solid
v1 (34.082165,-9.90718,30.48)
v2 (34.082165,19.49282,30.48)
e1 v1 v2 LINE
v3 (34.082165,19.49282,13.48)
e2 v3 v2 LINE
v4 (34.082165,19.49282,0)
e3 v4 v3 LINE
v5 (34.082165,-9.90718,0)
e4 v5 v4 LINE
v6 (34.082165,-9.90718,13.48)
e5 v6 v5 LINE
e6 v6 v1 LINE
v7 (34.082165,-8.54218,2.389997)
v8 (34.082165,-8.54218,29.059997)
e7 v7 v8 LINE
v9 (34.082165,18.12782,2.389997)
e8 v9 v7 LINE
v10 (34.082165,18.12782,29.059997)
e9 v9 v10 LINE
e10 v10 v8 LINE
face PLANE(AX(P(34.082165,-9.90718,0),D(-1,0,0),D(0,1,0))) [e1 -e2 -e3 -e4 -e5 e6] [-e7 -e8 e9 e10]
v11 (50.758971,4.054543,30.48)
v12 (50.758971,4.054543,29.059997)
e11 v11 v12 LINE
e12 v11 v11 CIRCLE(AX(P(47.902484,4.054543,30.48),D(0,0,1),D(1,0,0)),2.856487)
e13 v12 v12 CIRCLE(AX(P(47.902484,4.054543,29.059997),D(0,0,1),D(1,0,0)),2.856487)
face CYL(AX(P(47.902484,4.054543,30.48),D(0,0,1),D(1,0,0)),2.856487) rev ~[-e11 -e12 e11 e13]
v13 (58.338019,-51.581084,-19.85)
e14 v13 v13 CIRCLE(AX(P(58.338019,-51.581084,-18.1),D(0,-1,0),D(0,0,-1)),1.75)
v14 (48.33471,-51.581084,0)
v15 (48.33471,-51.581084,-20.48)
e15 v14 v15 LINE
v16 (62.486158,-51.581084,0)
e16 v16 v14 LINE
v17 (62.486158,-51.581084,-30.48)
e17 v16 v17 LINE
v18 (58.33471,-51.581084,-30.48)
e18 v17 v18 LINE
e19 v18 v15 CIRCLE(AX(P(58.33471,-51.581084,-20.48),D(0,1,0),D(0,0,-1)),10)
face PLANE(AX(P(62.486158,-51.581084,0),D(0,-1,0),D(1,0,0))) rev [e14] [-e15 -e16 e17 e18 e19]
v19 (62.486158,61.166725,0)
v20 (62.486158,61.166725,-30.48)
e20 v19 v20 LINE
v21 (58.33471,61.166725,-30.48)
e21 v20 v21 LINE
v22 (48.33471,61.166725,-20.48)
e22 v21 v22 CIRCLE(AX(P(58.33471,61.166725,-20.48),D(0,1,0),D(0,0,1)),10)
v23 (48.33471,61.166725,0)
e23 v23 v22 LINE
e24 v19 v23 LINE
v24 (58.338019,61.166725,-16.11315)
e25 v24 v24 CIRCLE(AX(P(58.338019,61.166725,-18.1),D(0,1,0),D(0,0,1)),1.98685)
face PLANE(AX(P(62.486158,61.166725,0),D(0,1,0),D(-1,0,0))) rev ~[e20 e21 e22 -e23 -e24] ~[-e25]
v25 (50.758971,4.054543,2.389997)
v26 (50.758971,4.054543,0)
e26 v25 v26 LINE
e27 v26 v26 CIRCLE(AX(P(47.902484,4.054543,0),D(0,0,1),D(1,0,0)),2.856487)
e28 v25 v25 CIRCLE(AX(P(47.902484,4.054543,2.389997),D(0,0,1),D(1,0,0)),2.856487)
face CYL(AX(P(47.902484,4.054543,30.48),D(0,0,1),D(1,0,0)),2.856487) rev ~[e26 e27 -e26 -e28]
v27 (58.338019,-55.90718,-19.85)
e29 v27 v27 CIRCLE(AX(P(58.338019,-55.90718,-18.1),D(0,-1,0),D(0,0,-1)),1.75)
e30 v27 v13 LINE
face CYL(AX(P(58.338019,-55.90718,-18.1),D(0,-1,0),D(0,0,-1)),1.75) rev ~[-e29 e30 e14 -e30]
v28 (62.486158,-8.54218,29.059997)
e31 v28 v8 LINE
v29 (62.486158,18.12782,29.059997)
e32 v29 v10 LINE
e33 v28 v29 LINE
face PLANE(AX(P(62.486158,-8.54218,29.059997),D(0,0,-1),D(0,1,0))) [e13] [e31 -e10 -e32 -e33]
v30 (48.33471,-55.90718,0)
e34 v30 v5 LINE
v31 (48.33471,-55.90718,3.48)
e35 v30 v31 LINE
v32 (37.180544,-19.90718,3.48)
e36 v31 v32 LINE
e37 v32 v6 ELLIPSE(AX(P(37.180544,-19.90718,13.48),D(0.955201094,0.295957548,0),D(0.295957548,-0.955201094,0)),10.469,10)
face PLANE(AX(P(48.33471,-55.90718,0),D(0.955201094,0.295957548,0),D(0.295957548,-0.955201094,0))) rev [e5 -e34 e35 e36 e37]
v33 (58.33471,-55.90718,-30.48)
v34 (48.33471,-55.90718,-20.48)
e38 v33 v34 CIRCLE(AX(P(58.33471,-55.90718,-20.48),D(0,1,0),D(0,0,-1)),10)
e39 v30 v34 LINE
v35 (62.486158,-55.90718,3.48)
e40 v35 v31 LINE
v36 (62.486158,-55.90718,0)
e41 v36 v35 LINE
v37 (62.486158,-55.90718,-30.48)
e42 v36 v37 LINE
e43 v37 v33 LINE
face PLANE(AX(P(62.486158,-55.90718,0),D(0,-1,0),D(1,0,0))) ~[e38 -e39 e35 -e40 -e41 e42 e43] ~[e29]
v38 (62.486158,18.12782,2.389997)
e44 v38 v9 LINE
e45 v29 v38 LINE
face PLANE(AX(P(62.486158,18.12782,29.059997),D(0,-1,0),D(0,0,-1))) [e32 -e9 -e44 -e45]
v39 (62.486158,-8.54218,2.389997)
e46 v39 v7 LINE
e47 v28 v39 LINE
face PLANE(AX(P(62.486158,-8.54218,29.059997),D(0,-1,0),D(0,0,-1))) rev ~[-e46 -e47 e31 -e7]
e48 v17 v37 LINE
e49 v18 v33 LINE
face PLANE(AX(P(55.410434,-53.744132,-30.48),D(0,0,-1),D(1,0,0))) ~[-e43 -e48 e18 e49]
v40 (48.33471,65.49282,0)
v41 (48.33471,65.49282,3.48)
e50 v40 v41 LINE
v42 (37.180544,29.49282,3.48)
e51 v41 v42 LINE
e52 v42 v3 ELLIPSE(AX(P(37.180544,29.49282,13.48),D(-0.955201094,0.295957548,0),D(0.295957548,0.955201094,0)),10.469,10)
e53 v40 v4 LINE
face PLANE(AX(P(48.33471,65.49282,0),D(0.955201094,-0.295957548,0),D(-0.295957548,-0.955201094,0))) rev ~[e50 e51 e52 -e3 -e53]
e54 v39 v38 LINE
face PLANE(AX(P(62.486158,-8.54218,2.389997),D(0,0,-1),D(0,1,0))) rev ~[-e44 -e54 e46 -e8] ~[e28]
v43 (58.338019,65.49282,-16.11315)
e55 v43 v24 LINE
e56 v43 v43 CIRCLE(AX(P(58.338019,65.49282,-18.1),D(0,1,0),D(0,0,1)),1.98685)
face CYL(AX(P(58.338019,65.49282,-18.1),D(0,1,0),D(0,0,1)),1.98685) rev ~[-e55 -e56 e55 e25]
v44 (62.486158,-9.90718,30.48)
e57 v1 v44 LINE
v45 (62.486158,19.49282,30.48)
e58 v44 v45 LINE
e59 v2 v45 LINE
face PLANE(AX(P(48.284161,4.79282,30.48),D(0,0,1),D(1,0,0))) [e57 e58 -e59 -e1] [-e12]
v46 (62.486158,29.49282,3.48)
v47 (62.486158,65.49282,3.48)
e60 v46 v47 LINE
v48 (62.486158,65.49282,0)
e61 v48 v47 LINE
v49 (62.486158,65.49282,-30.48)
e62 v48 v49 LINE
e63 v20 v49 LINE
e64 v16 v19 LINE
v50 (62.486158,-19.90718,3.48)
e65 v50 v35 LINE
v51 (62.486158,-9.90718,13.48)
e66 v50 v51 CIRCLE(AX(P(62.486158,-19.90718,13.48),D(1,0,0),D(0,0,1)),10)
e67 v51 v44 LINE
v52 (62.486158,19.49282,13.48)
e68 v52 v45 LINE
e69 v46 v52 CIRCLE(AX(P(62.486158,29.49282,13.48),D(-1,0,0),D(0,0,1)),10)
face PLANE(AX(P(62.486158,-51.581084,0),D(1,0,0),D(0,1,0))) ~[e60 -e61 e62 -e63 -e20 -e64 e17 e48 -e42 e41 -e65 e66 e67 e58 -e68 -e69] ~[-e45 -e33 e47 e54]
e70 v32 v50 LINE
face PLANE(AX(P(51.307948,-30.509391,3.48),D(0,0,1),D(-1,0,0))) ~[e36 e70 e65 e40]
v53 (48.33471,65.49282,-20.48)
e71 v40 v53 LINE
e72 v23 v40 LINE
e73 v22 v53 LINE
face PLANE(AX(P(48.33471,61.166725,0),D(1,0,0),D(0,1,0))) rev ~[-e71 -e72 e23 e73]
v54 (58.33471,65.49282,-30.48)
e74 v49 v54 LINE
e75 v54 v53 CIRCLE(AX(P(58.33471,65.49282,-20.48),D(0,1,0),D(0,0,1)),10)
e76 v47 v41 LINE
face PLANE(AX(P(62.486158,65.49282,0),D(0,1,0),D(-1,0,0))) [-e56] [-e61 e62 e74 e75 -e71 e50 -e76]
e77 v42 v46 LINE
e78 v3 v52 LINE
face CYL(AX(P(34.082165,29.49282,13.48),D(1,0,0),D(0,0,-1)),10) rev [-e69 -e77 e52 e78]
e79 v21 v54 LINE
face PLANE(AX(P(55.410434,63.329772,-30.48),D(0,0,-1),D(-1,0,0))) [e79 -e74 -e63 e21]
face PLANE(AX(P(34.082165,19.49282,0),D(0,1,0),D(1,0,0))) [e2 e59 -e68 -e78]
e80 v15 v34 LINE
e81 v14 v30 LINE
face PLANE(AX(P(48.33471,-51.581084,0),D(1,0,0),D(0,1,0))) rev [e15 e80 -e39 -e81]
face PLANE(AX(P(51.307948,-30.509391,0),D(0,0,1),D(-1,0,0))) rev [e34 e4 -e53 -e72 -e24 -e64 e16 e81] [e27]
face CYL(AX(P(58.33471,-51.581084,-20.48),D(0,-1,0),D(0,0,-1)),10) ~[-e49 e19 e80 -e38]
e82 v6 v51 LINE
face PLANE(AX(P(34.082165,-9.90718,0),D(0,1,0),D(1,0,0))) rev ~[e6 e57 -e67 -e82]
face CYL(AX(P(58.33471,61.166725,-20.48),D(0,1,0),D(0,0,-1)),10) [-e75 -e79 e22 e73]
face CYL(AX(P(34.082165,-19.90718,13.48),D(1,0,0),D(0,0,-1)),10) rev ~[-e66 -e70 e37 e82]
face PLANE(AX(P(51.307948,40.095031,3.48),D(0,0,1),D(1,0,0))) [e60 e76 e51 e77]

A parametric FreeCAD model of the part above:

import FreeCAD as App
import Part
import Sketcher
Q = App.Units.Quantity


def edges_at(feature, points):
    """Names of the edges that pass closest to the given points."""
    edges = feature.Shape.Edges
    near = lambda p: min(range(len(edges)), key=lambda i: edges[i].distToShape(Part.Vertex(*p))[0])
    return sorted({f"Edge{near(p) + 1}" for p in points})

doc = App.newDocument("Part")
body = doc.addObject("PartDesign::Body", "Body")

# Sketch on XY plane
sketch1 = body.newObject("Sketcher::SketchObject", "Sketch")
sketch1.AttachmentSupport = (doc.getObject("XY_Plane"), [""])
sketch1.MapMode = "FlatFace"
sketch1.addGeometry([
    Part.LineSegment(App.Vector(34, 19, 0), App.Vector(34, -10, 0)),
    Part.LineSegment(App.Vector(34, -10, 0), App.Vector(62, -10, 0)),
    Part.LineSegment(App.Vector(62, -10, 0), App.Vector(62, 19, 0)),
    Part.LineSegment(App.Vector(62, 19, 0), App.Vector(34, 19, 0)),
], False)
sketch1.addConstraint([
    Sketcher.Constraint("Coincident", 0, 2, 1, 1),
    Sketcher.Constraint("Coincident", 1, 2, 2, 1),
    Sketcher.Constraint("Coincident", 2, 2, 3, 1),
    Sketcher.Constraint("Coincident", 3, 2, 0, 1),
    Sketcher.Constraint("Vertical", 0),
    Sketcher.Constraint("Horizontal", 1),
    Sketcher.Constraint("Vertical", 2),
    Sketcher.Constraint("Horizontal", 3),
    Sketcher.Constraint("DistanceY", 0, 2, 0, 1, Q("29.4 mm")),
    Sketcher.Constraint("DistanceX", 1, 1, 1, 2, Q("28.403994 mm")),
    Sketcher.Constraint("DistanceY", 0, 2, -1, 1, Q("9.90718 mm")),
    Sketcher.Constraint("DistanceX", -1, 1, 1, 2, Q("62.486158 mm")),
])
pad1 = body.newObject("PartDesign::Pad", "Pad")
pad1.Profile = sketch1
pad1.Length = 30.48

# Sketch on XY plane
sketch2 = body.newObject("Sketcher::SketchObject", "Sketch001")
sketch2.AttachmentSupport = (doc.getObject("XY_Plane"), [""])
sketch2.MapMode = "FlatFace"
sketch2.addGeometry([
    Part.LineSegment(App.Vector(62, 65, 0), App.Vector(62, 19, 0)),
    Part.LineSegment(App.Vector(62, 19, 0), App.Vector(34, 19, 0)),
    Part.LineSegment(App.Vector(34, 19, 0), App.Vector(48, 65, 0)),
    Part.LineSegment(App.Vector(48, 65, 0), App.Vector(62, 65, 0)),
], False)
sketch2.addConstraint([
    Sketcher.Constraint("Coincident", 0, 2, 1, 1),
    Sketcher.Constraint("Coincident", 1, 2, 2, 1),
    Sketcher.Constraint("Coincident", 2, 2, 3, 1),
    Sketcher.Constraint("Coincident", 3, 2, 0, 1),
    Sketcher.Constraint("Vertical", 0),
    Sketcher.Constraint("Horizontal", 1),
    Sketcher.Constraint("Horizontal", 3),
    Sketcher.Constraint("DistanceY", 0, 2, 0, 1, Q("46 mm")),
    Sketcher.Constraint("Distance", 2, Q("48.157399 mm")),
    Sketcher.Constraint("DistanceX", 1, 2, 1, 1, Q("28.403994 mm")),
    Sketcher.Constraint("DistanceX", -1, 1, 0, 2, Q("62.486158 mm")),
    Sketcher.Constraint("DistanceY", -1, 1, 0, 2, Q("19.49282 mm")),
])
pad2 = body.newObject("PartDesign::Pad", "Pad001")
pad2.Profile = sketch2
pad2.Length = 3.48

# Sketch on XY plane
sketch3 = body.newObject("Sketcher::SketchObject", "Sketch002")
sketch3.AttachmentSupport = (doc.getObject("XY_Plane"), [""])
sketch3.MapMode = "FlatFace"
sketch3.addGeometry([
    Part.LineSegment(App.Vector(62.5, 65.5, 0), App.Vector(62.5, 61.2, 0)),
    Part.LineSegment(App.Vector(62.5, 61.2, 0), App.Vector(48.3, 61.2, 0)),
    Part.LineSegment(App.Vector(48.3, 61.2, 0), App.Vector(48.3, 65.5, 0)),
    Part.LineSegment(App.Vector(48.3, 65.5, 0), App.Vector(62.5, 65.5, 0)),
], False)
sketch3.addConstraint([
    Sketcher.Constraint("Coincident", 0, 2, 1, 1),
    Sketcher.Constraint("Coincident", 1, 2, 2, 1),
    Sketcher.Constraint("Coincident", 2, 2, 3, 1),
    Sketcher.Constraint("Coincident", 3, 2, 0, 1),
    Sketcher.Constraint("Vertical", 0),
    Sketcher.Constraint("Horizontal", 1),
    Sketcher.Constraint("Vertical", 2),
    Sketcher.Constraint("Horizontal", 3),
    Sketcher.Constraint("DistanceX", 1, 2, 1, 1, Q("14.151448 mm")),
    Sketcher.Constraint("DistanceY", 0, 2, 0, 1, Q("4.326096 mm")),
    Sketcher.Constraint("DistanceX", -1, 1, 0, 2, Q("62.486158 mm")),
    Sketcher.Constraint("DistanceY", -1, 1, 2, 2, Q("65.49282 mm")),
])
pad3 = body.newObject("PartDesign::Pad", "Pad002")
pad3.Profile = sketch3
pad3.Length = 30.48
pad3.Reversed = True

# Sketch on XZ plane
sketch4 = body.newObject("Sketcher::SketchObject", "Sketch003")
sketch4.AttachmentSupport = (doc.getObject("XZ_Plane"), [""])
sketch4.MapMode = "FlatFace"
sketch4.AttachmentOffset = App.Placement(App.Vector(0, 0, -65.49282), App.Rotation())
sketch4.addGeometry(Part.Circle(App.Vector(58.3, -18.1, 0), App.Vector(0, 0, 1), 2), False)
sketch4.addConstraint([
    Sketcher.Constraint("Diameter", 0, Q("3.973701 mm")),
    Sketcher.Constraint("DistanceY", 0, 3, -1, 1, Q("18.1 mm")),
    Sketcher.Constraint("DistanceX", -1, 1, 0, 3, Q("58.338019 mm")),
])
pocket1 = body.newObject("PartDesign::Pocket", "Pocket")
pocket1.Profile = sketch4
pocket1.Length = 4.48
pocket1.Reversed = True
doc.recompute()

fillet = body.newObject("PartDesign::Fillet", "Fillet")
fillet.Base = (pocket1, edges_at(pocket1, [(48.284, 19.493, 3.48)]))
fillet.Radius = 10
doc.recompute()

datumplane = body.newObject("PartDesign::Plane", "DatumPlane")
datumplane.AttachmentSupport = (doc.getObject("XZ_Plane"), [""])
datumplane.MapMode = "FlatFace"
datumplane.AttachmentOffset = App.Placement(App.Vector(0, 0, -4.79282), App.Rotation())
mirrored = body.newObject("PartDesign::Mirrored", "Mirrored")
mirrored.Originals = [pad2, pad3]
mirrored.MirrorPlane = (datumplane, [""])
body.Tip = mirrored

# Sketch on XY plane
sketch5 = body.newObject("Sketcher::SketchObject", "Sketch004")
sketch5.AttachmentSupport = (doc.getObject("XY_Plane"), [""])
sketch5.MapMode = "FlatFace"
sketch5.AttachmentOffset = App.Placement(App.Vector(0, 0, 30.48), App.Rotation())
sketch5.addGeometry(Part.Circle(App.Vector(47.9, 4.1, 0), App.Vector(0, 0, 1), 2.9), False)
sketch5.addConstraint([
    Sketcher.Constraint("Diameter", 0, Q("5.712974 mm")),
    Sketcher.Constraint("DistanceX", -1, 1, 0, 3, Q("47.902484 mm")),
    Sketcher.Constraint("DistanceY", -1, 1, 0, 3, Q("4.054543 mm")),
])
pocket2 = body.newObject("PartDesign::Pocket", "Pocket001")
pocket2.Profile = sketch5
pocket2.Length = 30.48
doc.recompute()

fillet2 = body.newObject("PartDesign::Fillet", "Fillet001")
fillet2.Base = (pocket2, edges_at(pocket2, [(48.284, -9.907, 3.48)]))
fillet2.Radius = 10

# Sketch on XZ plane
sketch6 = body.newObject("Sketcher::SketchObject", "Sketch005")
sketch6.AttachmentSupport = (doc.getObject("XZ_Plane"), [""])
sketch6.MapMode = "FlatFace"
sketch6.AttachmentOffset = App.Placement(App.Vector(0, 0, 55.90718), App.Rotation())
sketch6.addGeometry(Part.Circle(App.Vector(58.3, -18.1, 0), App.Vector(0, 0, 1), 1.8), False)
sketch6.addConstraint([
    Sketcher.Constraint("Diameter", 0, Q("3.5 mm")),
    Sketcher.Constraint("DistanceY", 0, 3, -1, 1, Q("18.1 mm")),
    Sketcher.Constraint("DistanceX", -1, 1, 0, 3, Q("58.338019 mm")),
])
pocket3 = body.newObject("PartDesign::Pocket", "Pocket002")
pocket3.Profile = sketch6
pocket3.Length = 4.48

# Sketch on YZ plane
sketch7 = body.newObject("Sketcher::SketchObject", "Sketch006")
sketch7.AttachmentSupport = (doc.getObject("YZ_Plane"), [""])
sketch7.MapMode = "FlatFace"
sketch7.AttachmentOffset = App.Placement(App.Vector(0, 0, 62.486158), App.Rotation())
sketch7.addGeometry([
    Part.LineSegment(App.Vector(18, 29, 0), App.Vector(-9, 29, 0)),
    Part.LineSegment(App.Vector(-9, 29, 0), App.Vector(-9, 2, 0)),
    Part.LineSegment(App.Vector(-9, 2, 0), App.Vector(18, 2, 0)),
    Part.LineSegment(App.Vector(18, 2, 0), App.Vector(18, 29, 0)),
], False)
sketch7.addConstraint([
    Sketcher.Constraint("Coincident", 0, 2, 1, 1),
    Sketcher.Constraint("Coincident", 1, 2, 2, 1),
    Sketcher.Constraint("Coincident", 2, 2, 3, 1),
    Sketcher.Constraint("Coincident", 3, 2, 0, 1),
    Sketcher.Constraint("Horizontal", 0),
    Sketcher.Constraint("Vertical", 1),
    Sketcher.Constraint("Horizontal", 2),
    Sketcher.Constraint("Vertical", 3),
    Sketcher.Constraint("Equal", 2, 1),
    Sketcher.Constraint("DistanceX", 0, 2, 0, 1, Q("26.67 mm")),
    Sketcher.Constraint("DistanceX", 0, 2, -1, 1, Q("8.54218 mm")),
    Sketcher.Constraint("DistanceY", -1, 1, 0, 2, Q("29.059997 mm")),
])
pocket4 = body.newObject("PartDesign::Pocket", "Pocket003")
pocket4.Profile = sketch7
pocket4.Length = 30.48
doc.recompute()

fillet3 = body.newObject("PartDesign::Fillet", "Fillet002")
fillet3.Base = (pocket4, edges_at(pocket4, [(48.335, 63.33, -30.48), (48.335, -53.744, -30.48)]))
fillet3.Radius = 10

doc.recompute()
